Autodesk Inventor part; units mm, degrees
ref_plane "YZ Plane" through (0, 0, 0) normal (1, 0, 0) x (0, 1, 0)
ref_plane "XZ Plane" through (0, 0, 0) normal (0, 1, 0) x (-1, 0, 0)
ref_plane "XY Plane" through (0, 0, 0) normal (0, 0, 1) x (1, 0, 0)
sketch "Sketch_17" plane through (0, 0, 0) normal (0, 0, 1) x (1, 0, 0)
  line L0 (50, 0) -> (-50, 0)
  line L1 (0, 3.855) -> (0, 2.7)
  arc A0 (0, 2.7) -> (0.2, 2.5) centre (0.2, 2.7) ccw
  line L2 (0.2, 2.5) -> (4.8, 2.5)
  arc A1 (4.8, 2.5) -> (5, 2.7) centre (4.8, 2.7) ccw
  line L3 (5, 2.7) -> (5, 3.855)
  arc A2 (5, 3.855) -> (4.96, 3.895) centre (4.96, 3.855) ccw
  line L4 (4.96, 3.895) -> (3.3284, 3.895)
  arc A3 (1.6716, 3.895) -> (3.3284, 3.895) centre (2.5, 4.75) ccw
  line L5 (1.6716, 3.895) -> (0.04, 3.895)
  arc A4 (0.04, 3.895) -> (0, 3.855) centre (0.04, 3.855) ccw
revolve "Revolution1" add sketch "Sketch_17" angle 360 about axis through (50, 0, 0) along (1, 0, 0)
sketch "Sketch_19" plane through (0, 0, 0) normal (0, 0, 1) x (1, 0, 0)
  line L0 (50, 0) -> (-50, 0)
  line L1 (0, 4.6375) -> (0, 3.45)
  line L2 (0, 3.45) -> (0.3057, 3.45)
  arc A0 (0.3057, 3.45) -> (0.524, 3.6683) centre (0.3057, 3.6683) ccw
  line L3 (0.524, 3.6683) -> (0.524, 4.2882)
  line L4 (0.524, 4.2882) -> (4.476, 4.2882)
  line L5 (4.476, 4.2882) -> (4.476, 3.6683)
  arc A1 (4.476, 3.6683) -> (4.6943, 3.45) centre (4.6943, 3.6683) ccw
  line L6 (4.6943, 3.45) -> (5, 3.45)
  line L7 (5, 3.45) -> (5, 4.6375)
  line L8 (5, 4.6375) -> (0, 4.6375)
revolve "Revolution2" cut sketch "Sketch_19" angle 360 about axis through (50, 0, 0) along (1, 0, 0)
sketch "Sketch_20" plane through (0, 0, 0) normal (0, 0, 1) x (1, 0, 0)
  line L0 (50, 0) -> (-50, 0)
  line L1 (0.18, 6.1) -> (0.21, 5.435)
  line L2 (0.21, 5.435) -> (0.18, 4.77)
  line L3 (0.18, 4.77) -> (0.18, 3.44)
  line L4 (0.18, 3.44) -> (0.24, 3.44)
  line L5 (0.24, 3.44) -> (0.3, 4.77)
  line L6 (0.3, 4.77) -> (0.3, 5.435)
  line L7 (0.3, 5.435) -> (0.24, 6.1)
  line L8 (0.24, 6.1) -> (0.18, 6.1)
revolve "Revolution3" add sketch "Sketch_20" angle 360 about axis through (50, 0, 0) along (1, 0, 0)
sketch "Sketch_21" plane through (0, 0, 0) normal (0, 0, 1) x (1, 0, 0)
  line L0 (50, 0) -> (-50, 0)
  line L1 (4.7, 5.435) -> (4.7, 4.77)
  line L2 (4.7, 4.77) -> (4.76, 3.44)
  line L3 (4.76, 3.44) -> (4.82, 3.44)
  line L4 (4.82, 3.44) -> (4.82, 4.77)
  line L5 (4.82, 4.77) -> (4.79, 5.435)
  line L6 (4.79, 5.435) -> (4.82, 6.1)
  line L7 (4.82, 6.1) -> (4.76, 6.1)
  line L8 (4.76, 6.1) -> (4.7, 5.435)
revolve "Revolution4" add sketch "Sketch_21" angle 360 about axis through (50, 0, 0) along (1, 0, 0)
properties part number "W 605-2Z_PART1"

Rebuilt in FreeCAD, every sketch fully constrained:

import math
import FreeCAD as App
import Part
import Sketcher
from FreeCAD import Vector
Q = App.Units.Quantity


def add_polygon(sketch, points):
    """Adds a closed chain of lines whose ends are joined by coincident constraints."""
    first, n = sketch.GeometryCount, len(points)
    for a, b in zip(points, points[1:] + points[:1]):
        sketch.addGeometry(Part.LineSegment(App.Vector(*a, 0), App.Vector(*b, 0)), False)
    for i in range(n):
        sketch.addConstraint(Sketcher.Constraint("Coincident", first + i, 2, first + (i + 1) % n, 1))

doc = App.newDocument("Part")
body = doc.addObject("PartDesign::Body", "Body")

# Sketch on XY plane
sketch1 = body.newObject("Sketcher::SketchObject", "Sketch")
sketch1.AttachmentSupport = (doc.getObject("XY_Plane"), [""])
sketch1.MapMode = "FlatFace"
sketch1.addGeometry([
    Part.ArcOfCircle(Part.Circle(Vector(0.04, 3.855, 0), Vector(0, 0, 1), 0.04), math.radians(90), math.radians(180)),  # 0
    Part.LineSegment(Vector(0, 3.855, 0), Vector(0, 2.7, 0)),  # 1
    Part.ArcOfCircle(Part.Circle(Vector(0.2, 2.7, 0), Vector(0, 0, 1), 0.2), math.radians(180), math.radians(270)),  # 2
    Part.LineSegment(Vector(0.2, 2.5, 0), Vector(4.8, 2.5, 0)),  # 3
    Part.ArcOfCircle(Part.Circle(Vector(4.8, 2.7, 0), Vector(0, 0, 1), 0.2), math.radians(-90), math.radians(0)),  # 4
    Part.LineSegment(Vector(5, 2.7, 0), Vector(5, 3.855, 0)),  # 5
    Part.ArcOfCircle(Part.Circle(Vector(4.96, 3.855, 0), Vector(0, 0, 1), 0.04), math.radians(0), math.radians(90)),  # 6
    Part.LineSegment(Vector(4.96, 3.895, 0), Vector(3.328, 3.895, 0)),  # 7
    Part.ArcOfCircle(Part.Circle(Vector(2.5, 4.75, 0), Vector(0, 0, 1), 1.19), math.radians(-134), math.radians(-46)),  # 8
    Part.LineSegment(Vector(1.672, 3.895, 0), Vector(0.04, 3.895, 0)),  # 9
], False)
sketch1.addConstraint([
    Sketcher.Constraint("Tangent", 0, 2, 1, 1),
    Sketcher.Constraint("Tangent", 1, 2, 2, 1),
    Sketcher.Constraint("Tangent", 2, 2, 3, 1),
    Sketcher.Constraint("Tangent", 3, 2, 4, 1),
    Sketcher.Constraint("Tangent", 4, 2, 5, 1),
    Sketcher.Constraint("Tangent", 5, 2, 6, 1),
    Sketcher.Constraint("Tangent", 6, 2, 7, 1),
    Sketcher.Constraint("Coincident", 7, 2, 8, 2),
    Sketcher.Constraint("Coincident", 8, 1, 9, 1),
    Sketcher.Constraint("Tangent", 9, 2, 0, 1),
    Sketcher.Constraint("Vertical", 1),
    Sketcher.Constraint("Horizontal", 3),
    Sketcher.Constraint("Vertical", 5),
    Sketcher.Constraint("Horizontal", 7),
    Sketcher.Constraint("Horizontal", 9),
    Sketcher.Constraint("Equal", 2, 4),
    Sketcher.Constraint("Equal", 0, 6),
    Sketcher.Constraint("PointOnObject", 0, 2, -2),
    Sketcher.Constraint("Horizontal", 0, 3, 6, 3),
    Sketcher.Constraint("Equal", 7, 9),
    Sketcher.Constraint("Radius", 2, Q("0.2 mm")),
    Sketcher.Constraint("Radius", 0, Q("0.04 mm")),
    Sketcher.Constraint("DistanceX", 3, 1, 3, 2, Q("4.6 mm")),
    Sketcher.Constraint("DistanceY", -1, 1, 2, 3, Q("2.7 mm")),
    Sketcher.Constraint("Radius", 8, Q("1.1905 mm")),
    Sketcher.Constraint("DistanceY", 1, 2, 1, 1, Q("1.155 mm")),
    Sketcher.Constraint("DistanceY", -1, 1, 8, 3, Q("4.75 mm")),
])
revolution = body.newObject("PartDesign::Revolution", "Revolution")
revolution.Profile = sketch1
revolution.ReferenceAxis = (sketch1, ["H_Axis"])
revolution.Angle = 360

# Sketch on XY plane
sketch2 = body.newObject("Sketcher::SketchObject", "Sketch001")
sketch2.AttachmentSupport = (doc.getObject("XY_Plane"), [""])
sketch2.MapMode = "FlatFace"
sketch2.addGeometry([
    Part.LineSegment(Vector(5, 4.64, 0), Vector(0, 4.64, 0)),  # 0
    Part.LineSegment(Vector(0, 4.64, 0), Vector(0, 3.45, 0)),  # 1
    Part.LineSegment(Vector(0, 3.45, 0), Vector(0.31, 3.45, 0)),  # 2
    Part.ArcOfCircle(Part.Circle(Vector(0.31, 3.67, 0), Vector(0, 0, 1), 0.22), math.radians(-90), math.radians(0)),  # 3
    Part.LineSegment(Vector(0.52, 3.67, 0), Vector(0.52, 4.29, 0)),  # 4
    Part.LineSegment(Vector(0.52, 4.29, 0), Vector(4.48, 4.29, 0)),  # 5
    Part.LineSegment(Vector(4.48, 4.29, 0), Vector(4.48, 3.67, 0)),  # 6
    Part.ArcOfCircle(Part.Circle(Vector(4.69, 3.67, 0), Vector(0, 0, 1), 0.22), math.radians(180), math.radians(270)),  # 7
    Part.LineSegment(Vector(4.69, 3.45, 0), Vector(5, 3.45, 0)),  # 8
    Part.LineSegment(Vector(5, 3.45, 0), Vector(5, 4.64, 0)),  # 9
], False)
sketch2.addConstraint([
    Sketcher.Constraint("Coincident", 0, 2, 1, 1),
    Sketcher.Constraint("Coincident", 1, 2, 2, 1),
    Sketcher.Constraint("Tangent", 2, 2, 3, 1),
    Sketcher.Constraint("Tangent", 3, 2, 4, 1),
    Sketcher.Constraint("Coincident", 4, 2, 5, 1),
    Sketcher.Constraint("Coincident", 5, 2, 6, 1),
    Sketcher.Constraint("Tangent", 6, 2, 7, 1),
    Sketcher.Constraint("Tangent", 7, 2, 8, 1),
    Sketcher.Constraint("Coincident", 8, 2, 9, 1),
    Sketcher.Constraint("Coincident", 9, 2, 0, 1),
    Sketcher.Constraint("Horizontal", 0),
    Sketcher.Constraint("Vertical", 1),
    Sketcher.Constraint("Horizontal", 2),
    Sketcher.Constraint("Vertical", 4),
    Sketcher.Constraint("Horizontal", 5),
    Sketcher.Constraint("Vertical", 6),
    Sketcher.Constraint("Horizontal", 8),
    Sketcher.Constraint("Vertical", 9),
    Sketcher.Constraint("Equal", 3, 7),
    Sketcher.Constraint("PointOnObject", 0, 2, -2),
    Sketcher.Constraint("Horizontal", 3, 3, 7, 3),
    Sketcher.Constraint("Equal", 2, 8),
    Sketcher.Constraint("DistanceX", 0, 2, 0, 1, Q("5 mm")),
    Sketcher.Constraint("DistanceY", 4, 1, 4, 2, Q("0.62 mm")),
    Sketcher.Constraint("Radius", 3, Q("0.2183 mm")),
    Sketcher.Constraint("DistanceX", 5, 1, 5, 2, Q("3.952 mm")),
    Sketcher.Constraint("DistanceY", -1, 1, 1, 2, Q("3.45 mm")),
    Sketcher.Constraint("DistanceY", 1, 2, 1, 1, Q("1.1875 mm")),
])
groove = body.newObject("PartDesign::Groove", "Groove")
groove.Profile = sketch2
groove.ReferenceAxis = (sketch2, ["H_Axis"])
groove.Angle = 360

# Sketch on XY plane
sketch3 = body.newObject("Sketcher::SketchObject", "Sketch002")
sketch3.AttachmentSupport = (doc.getObject("XY_Plane"), [""])
sketch3.MapMode = "FlatFace"
add_polygon(sketch3, [(0.24, 6.1), (0.18, 6.1), (0.21, 5.43), (0.18, 4.77), (0.18, 3.44), (0.24, 3.44), (0.3, 4.77), (0.3, 5.43)])  # lines 0-7
sketch3.addConstraint([
    Sketcher.Constraint("Horizontal", 0),
    Sketcher.Constraint("Vertical", 3),
    Sketcher.Constraint("Horizontal", 4),
    Sketcher.Constraint("Vertical", 6),
    Sketcher.Constraint("Parallel", 2, 5),
    Sketcher.Constraint("Horizontal", 2, 2, 5, 2),
    Sketcher.Constraint("Horizontal", 1, 2, 6, 2),
    Sketcher.Constraint("Vertical", 0, 2, 2, 2),
    Sketcher.Constraint("Vertical", 4, 2, 7, 2),
    Sketcher.Constraint("Equal", 1, 2),
    Sketcher.Constraint("DistanceX", 0, 2, 0, 1, Q("0.06 mm")),
    Sketcher.Constraint("DistanceY", 3, 2, 3, 1, Q("1.33 mm")),
    Sketcher.Constraint("DistanceY", -1, 1, 0, 2, Q("6.1 mm")),
    Sketcher.Constraint("DistanceX", -1, 1, 5, 2, Q("0.3 mm")),
    Sketcher.Constraint("DistanceY", 6, 1, 6, 2, Q("0.665 mm")),
    Sketcher.Constraint("DistanceX", -1, 1, 0, 2, Q("0.18 mm")),
])
revolution2 = body.newObject("PartDesign::Revolution", "Revolution001")
revolution2.Profile = sketch3
revolution2.ReferenceAxis = (sketch3, ["H_Axis"])
revolution2.Angle = 360

# Sketch on XY plane
sketch4 = body.newObject("Sketcher::SketchObject", "Sketch003")
sketch4.AttachmentSupport = (doc.getObject("XY_Plane"), [""])
sketch4.MapMode = "FlatFace"
add_polygon(sketch4, [(4.76, 6.1), (4.7, 5.43), (4.7, 4.77), (4.76, 3.44), (4.82, 3.44), (4.82, 4.77), (4.79, 5.43), (4.82, 6.1)])  # lines 0-7
sketch4.addConstraint([
    Sketcher.Constraint("Vertical", 1),
    Sketcher.Constraint("Horizontal", 3),
    Sketcher.Constraint("Vertical", 4),
    Sketcher.Constraint("Horizontal", 7),
    Sketcher.Constraint("Parallel", 2, 5),
    Sketcher.Constraint("Horizontal", 1, 2, 4, 2),
    Sketcher.Constraint("Horizontal", 0, 2, 5, 2),
    Sketcher.Constraint("Vertical", 4, 2, 6, 2),
    Sketcher.Constraint("Vertical", 2, 2, 7, 2),
    Sketcher.Constraint("Equal", 5, 6),
    Sketcher.Constraint("DistanceX", 3, 1, 3, 2, Q("0.06 mm")),
    Sketcher.Constraint("DistanceY", 4, 1, 4, 2, Q("1.33 mm")),
    Sketcher.Constraint("DistanceX", -1, 1, 0, 2, Q("4.7 mm")),
    Sketcher.Constraint("DistanceY", -1, 1, 6, 2, Q("6.1 mm")),
    Sketcher.Constraint("DistanceY", 1, 2, 1, 1, Q("0.665 mm")),
    Sketcher.Constraint("DistanceX", -1, 1, 2, 2, Q("4.76 mm")),
])
revolution3 = body.newObject("PartDesign::Revolution", "Revolution002")
revolution3.Profile = sketch4
revolution3.ReferenceAxis = (sketch4, ["H_Axis"])
revolution3.Angle = 360

doc.recompute()
